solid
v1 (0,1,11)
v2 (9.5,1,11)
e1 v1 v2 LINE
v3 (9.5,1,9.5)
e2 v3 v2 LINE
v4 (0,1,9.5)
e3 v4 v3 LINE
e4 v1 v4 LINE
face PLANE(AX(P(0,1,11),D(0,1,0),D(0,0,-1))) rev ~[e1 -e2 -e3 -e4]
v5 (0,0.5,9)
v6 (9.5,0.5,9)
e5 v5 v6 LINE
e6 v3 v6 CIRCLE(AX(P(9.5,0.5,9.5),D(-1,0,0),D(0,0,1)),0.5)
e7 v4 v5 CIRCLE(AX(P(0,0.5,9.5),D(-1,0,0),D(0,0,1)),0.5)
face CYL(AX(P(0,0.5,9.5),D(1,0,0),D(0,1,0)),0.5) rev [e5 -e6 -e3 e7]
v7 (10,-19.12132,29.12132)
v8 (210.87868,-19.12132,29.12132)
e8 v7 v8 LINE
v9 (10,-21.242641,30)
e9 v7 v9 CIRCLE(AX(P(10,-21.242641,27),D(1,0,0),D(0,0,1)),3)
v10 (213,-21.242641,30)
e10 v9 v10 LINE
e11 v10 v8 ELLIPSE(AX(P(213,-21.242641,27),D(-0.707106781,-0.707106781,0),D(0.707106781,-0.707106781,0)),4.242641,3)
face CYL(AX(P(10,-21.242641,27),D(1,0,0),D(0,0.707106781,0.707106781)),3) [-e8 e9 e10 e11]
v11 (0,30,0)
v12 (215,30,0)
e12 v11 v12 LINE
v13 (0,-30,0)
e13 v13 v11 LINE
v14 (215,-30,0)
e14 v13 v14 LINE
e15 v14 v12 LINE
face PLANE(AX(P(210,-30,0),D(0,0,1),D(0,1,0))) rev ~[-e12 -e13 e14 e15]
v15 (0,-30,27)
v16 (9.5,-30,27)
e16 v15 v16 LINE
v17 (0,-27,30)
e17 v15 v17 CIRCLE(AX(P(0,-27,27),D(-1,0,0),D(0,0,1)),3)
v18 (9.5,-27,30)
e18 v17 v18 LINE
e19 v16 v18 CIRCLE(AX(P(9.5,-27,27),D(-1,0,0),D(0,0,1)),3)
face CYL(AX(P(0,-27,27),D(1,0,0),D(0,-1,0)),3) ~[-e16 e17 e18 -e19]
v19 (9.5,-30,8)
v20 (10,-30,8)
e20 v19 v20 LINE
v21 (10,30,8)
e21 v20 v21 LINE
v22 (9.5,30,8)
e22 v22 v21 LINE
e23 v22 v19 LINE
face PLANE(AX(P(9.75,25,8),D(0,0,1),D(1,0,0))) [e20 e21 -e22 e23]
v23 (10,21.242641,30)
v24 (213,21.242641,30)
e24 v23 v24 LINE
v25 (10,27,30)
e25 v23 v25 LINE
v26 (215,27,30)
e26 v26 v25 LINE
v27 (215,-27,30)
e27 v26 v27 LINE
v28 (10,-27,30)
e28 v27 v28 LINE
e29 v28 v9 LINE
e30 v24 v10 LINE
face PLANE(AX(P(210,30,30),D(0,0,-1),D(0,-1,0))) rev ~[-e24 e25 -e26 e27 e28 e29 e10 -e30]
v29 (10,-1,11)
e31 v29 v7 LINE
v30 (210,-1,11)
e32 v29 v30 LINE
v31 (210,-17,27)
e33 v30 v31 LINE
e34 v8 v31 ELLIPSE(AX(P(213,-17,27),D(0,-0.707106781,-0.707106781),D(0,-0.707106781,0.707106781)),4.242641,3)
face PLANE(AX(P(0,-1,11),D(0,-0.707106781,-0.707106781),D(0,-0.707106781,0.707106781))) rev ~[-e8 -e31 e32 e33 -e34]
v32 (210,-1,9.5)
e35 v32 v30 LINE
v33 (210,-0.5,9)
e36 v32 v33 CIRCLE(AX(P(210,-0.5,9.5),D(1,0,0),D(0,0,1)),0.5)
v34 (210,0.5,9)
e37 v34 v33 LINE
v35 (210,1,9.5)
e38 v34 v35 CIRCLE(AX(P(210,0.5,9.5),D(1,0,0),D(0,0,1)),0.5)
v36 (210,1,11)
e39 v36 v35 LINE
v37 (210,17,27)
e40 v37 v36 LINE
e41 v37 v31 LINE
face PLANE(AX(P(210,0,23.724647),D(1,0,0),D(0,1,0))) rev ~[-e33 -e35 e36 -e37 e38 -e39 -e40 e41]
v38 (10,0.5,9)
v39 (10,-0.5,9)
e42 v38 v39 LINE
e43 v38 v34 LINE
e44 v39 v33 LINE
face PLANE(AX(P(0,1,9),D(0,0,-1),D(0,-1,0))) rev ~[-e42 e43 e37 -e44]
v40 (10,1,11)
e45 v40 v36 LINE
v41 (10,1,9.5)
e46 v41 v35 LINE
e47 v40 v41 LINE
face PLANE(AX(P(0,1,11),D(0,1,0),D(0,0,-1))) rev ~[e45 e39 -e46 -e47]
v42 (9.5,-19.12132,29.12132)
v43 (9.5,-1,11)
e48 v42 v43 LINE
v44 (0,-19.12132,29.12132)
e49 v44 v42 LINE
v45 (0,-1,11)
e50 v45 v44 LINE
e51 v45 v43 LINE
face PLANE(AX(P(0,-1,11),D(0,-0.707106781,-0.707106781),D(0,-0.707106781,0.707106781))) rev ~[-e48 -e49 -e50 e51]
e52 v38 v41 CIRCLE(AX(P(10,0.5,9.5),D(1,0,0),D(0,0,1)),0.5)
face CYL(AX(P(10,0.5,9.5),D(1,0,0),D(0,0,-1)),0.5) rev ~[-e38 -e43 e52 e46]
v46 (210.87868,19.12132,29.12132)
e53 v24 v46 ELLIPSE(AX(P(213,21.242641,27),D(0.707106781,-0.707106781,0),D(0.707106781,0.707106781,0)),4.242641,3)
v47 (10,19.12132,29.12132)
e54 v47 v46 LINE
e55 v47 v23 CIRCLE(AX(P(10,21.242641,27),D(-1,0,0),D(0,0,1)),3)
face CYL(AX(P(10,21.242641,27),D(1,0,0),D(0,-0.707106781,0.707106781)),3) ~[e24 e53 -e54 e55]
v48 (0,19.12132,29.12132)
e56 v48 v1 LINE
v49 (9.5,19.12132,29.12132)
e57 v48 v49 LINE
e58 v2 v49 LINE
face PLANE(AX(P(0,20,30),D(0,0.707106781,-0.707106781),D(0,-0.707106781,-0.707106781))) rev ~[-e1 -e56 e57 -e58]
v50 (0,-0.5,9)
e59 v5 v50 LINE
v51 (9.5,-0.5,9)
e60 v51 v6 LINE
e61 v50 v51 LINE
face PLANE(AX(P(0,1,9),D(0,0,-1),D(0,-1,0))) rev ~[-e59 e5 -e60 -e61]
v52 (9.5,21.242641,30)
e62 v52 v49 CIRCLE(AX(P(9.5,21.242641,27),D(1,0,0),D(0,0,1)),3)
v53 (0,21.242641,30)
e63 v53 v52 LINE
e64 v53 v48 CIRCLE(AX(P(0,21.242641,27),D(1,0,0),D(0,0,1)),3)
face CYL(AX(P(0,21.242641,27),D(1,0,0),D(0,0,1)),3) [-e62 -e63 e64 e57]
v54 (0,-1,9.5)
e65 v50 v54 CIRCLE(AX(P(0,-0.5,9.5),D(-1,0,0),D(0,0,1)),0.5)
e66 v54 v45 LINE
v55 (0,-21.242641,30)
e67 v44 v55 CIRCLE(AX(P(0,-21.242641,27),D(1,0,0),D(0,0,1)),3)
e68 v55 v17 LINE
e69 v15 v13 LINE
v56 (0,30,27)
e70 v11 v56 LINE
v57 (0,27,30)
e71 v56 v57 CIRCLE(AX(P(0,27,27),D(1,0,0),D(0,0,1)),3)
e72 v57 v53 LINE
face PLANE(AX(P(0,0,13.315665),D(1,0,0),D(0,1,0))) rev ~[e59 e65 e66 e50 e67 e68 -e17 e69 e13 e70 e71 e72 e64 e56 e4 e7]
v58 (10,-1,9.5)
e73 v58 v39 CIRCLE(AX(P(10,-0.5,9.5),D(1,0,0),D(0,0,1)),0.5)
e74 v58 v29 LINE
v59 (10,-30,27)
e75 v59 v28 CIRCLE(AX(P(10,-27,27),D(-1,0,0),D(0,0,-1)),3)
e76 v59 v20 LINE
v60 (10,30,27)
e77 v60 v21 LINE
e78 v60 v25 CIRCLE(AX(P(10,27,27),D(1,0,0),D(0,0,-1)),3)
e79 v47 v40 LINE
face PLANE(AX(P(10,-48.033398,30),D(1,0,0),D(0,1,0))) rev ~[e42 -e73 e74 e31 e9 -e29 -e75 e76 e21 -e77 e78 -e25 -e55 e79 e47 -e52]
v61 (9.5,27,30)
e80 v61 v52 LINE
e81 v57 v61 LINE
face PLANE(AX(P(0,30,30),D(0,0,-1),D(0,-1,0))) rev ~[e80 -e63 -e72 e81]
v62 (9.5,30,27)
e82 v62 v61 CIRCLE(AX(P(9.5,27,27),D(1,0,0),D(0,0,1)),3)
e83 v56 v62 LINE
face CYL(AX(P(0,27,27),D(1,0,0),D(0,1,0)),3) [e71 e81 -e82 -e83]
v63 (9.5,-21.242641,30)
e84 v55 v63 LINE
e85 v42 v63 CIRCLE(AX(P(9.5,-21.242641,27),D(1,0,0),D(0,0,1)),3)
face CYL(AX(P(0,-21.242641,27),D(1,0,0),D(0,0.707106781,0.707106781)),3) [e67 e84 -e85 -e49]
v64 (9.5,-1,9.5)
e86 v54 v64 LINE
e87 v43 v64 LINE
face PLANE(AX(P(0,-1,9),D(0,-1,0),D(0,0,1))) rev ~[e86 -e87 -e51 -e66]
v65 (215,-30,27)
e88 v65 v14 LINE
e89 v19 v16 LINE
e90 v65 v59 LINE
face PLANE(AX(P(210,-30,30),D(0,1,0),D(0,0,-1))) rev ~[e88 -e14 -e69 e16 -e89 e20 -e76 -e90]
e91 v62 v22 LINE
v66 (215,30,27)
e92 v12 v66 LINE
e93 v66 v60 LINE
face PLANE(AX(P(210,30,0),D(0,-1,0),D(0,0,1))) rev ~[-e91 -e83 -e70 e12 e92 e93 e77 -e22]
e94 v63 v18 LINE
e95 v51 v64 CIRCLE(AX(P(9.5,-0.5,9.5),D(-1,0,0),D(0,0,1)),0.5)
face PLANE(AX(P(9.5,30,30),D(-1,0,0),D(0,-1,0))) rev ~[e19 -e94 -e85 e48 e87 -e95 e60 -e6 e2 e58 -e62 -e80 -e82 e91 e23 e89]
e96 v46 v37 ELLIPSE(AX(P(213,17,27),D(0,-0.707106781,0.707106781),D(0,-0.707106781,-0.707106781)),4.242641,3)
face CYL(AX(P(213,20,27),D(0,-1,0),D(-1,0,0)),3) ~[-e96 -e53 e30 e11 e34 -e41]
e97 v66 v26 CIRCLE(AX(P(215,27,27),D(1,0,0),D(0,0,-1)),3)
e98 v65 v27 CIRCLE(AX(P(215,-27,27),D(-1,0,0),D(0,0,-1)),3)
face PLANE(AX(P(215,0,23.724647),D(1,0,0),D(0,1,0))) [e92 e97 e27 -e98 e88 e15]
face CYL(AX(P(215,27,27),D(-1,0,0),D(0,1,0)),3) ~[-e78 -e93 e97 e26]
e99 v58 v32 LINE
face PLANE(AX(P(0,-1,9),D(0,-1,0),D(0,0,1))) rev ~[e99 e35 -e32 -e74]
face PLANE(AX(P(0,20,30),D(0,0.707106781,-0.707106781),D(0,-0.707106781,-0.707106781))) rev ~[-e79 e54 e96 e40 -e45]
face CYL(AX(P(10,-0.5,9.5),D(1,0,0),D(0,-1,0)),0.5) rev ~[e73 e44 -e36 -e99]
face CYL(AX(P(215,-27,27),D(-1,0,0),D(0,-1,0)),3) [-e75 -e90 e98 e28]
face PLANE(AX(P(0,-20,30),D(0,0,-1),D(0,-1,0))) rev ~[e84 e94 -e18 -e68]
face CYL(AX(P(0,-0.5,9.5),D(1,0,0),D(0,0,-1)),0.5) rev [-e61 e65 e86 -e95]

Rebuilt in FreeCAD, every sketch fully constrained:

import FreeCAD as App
import Part
import Sketcher

V = App.Vector
Q = App.Units.Quantity


def edges_at(feature, points):
    """Names of the edges that pass closest to the given points."""
    edges = feature.Shape.Edges
    near = lambda p: min(range(len(edges)), key=lambda i: edges[i].distToShape(Part.Vertex(*p))[0])
    return sorted({f"Edge{near(p) + 1}" for p in points})

doc = App.newDocument("Part")
body = doc.addObject("PartDesign::Body", "Body")

# Sketch on YZ plane
sketch1 = doc.addObject("Sketcher::SketchObject", "Sketch")
body.addObject(sketch1)
sketch1.AttachmentSupport = (doc.YZ_Plane, [""])
sketch1.MapMode = "FlatFace"
sketch1.addGeometry([
    Part.LineSegment(V(30, 0, 0), V(30, 30, 0)),  # 0
    Part.LineSegment(V(30, 30, 0), V(20, 30, 0)),  # 1
    Part.LineSegment(V(20, 30, 0), V(1, 11, 0)),  # 2
    Part.LineSegment(V(1, 11, 0), V(1, 9, 0)),  # 3
    Part.LineSegment(V(1, 9, 0), V(-1, 9, 0)),  # 4
    Part.LineSegment(V(-1, 9, 0), V(-1, 11, 0)),  # 5
    Part.LineSegment(V(-1, 11, 0), V(-20, 30, 0)),  # 6
    Part.LineSegment(V(-20, 30, 0), V(-30, 30, 0)),  # 7
    Part.LineSegment(V(-30, 30, 0), V(-30, 0, 0)),  # 8
    Part.LineSegment(V(-30, 0, 0), V(30, 0, 0)),  # 9
], False)
sketch1.addConstraint([
    Sketcher.Constraint("Coincident", 0, 2, 1, 1),
    Sketcher.Constraint("Coincident", 1, 2, 2, 1),
    Sketcher.Constraint("Coincident", 2, 2, 3, 1),
    Sketcher.Constraint("Coincident", 3, 2, 4, 1),
    Sketcher.Constraint("Coincident", 4, 2, 5, 1),
    Sketcher.Constraint("Coincident", 5, 2, 6, 1),
    Sketcher.Constraint("Coincident", 6, 2, 7, 1),
    Sketcher.Constraint("Coincident", 7, 2, 8, 1),
    Sketcher.Constraint("Coincident", 8, 2, 9, 1),
    Sketcher.Constraint("Coincident", 9, 2, 0, 1),
    Sketcher.Constraint("Vertical", 0),
    Sketcher.Constraint("Horizontal", 1),
    Sketcher.Constraint("Vertical", 3),
    Sketcher.Constraint("Horizontal", 4),
    Sketcher.Constraint("Vertical", 5),
    Sketcher.Constraint("Horizontal", 7),
    Sketcher.Constraint("Vertical", 8),
    Sketcher.Constraint("Horizontal", 9),
    Sketcher.Constraint("Symmetric", 8, 2, 9, 2, -1, 1),
    Sketcher.Constraint("Symmetric", 2, 2, 5, 2, -2),
    Sketcher.Constraint("Symmetric", 1, 2, 6, 2, -2),
    Sketcher.Constraint("Perpendicular", 2, 6),
    Sketcher.Constraint("Equal", 4, 3),
    Sketcher.Constraint("DistanceX", 1, 2, 1, 1, Q("10 mm")),
    Sketcher.Constraint("DistanceX", 4, 2, 4, 1, Q("2 mm")),
    Sketcher.Constraint("DistanceX", 9, 1, 9, 2, Q("60 mm")),
    Sketcher.Constraint("DistanceY", 0, 1, 0, 2, Q("30 mm")),
])
pad1 = doc.addObject("PartDesign::Pad", "Pad")
body.addObject(pad1)
pad1.Profile = sketch1
pad1.Length = 210

# Sketch on XY plane
sketch2 = doc.addObject("Sketcher::SketchObject", "Sketch001")
body.addObject(sketch2)
sketch2.AttachmentSupport = (doc.XY_Plane, [""])
sketch2.MapMode = "FlatFace"
sketch2.AttachmentOffset = App.Placement(V(0, 0, 30), App.Rotation())
sketch2.addGeometry([
    Part.LineSegment(V(9.5, 30, 0), V(9.5, -48, 0)),
    Part.LineSegment(V(9.5, -48, 0), V(10, -48, 0)),
    Part.LineSegment(V(10, -48, 0), V(10, 30, 0)),
    Part.LineSegment(V(10, 30, 0), V(9.5, 30, 0)),
], False)
sketch2.addConstraint([
    Sketcher.Constraint("Coincident", 0, 2, 1, 1),
    Sketcher.Constraint("Coincident", 1, 2, 2, 1),
    Sketcher.Constraint("Coincident", 2, 2, 3, 1),
    Sketcher.Constraint("Coincident", 3, 2, 0, 1),
    Sketcher.Constraint("Vertical", 0),
    Sketcher.Constraint("Horizontal", 1),
    Sketcher.Constraint("Vertical", 2),
    Sketcher.Constraint("Horizontal", 3),
    Sketcher.Constraint("DistanceX", 1, 1, 1, 2, Q("0.5 mm")),
    Sketcher.Constraint("DistanceX", -1, 1, 1, 2, Q("10 mm")),
    Sketcher.Constraint("DistanceY", -1, 1, 2, 2, Q("30 mm")),
    Sketcher.Constraint("DistanceY", 0, 2, 0, 1, Q("78.033398 mm")),
])
pocket1 = doc.addObject("PartDesign::Pocket", "Pocket")
body.addObject(pocket1)
pocket1.Profile = sketch2
pocket1.Length = 22
doc.recompute()

fillet = doc.addObject("PartDesign::Fillet", "Fillet")
body.addObject(fillet)
fillet.Base = (pocket1, edges_at(pocket1, [
    (110, -1, 9),
    (110, 1, 9),
    (4.75, -1, 9),
    (4.75, 1, 9),
]))
fillet.Radius = 0.5

# Sketch on YZ plane
sketch3 = doc.addObject("Sketcher::SketchObject", "Sketch002")
body.addObject(sketch3)
sketch3.AttachmentSupport = (doc.YZ_Plane, [""])
sketch3.MapMode = "FlatFace"
sketch3.AttachmentOffset = App.Placement(V(0, 0, 210), App.Rotation())
sketch3.addGeometry([
    Part.LineSegment(V(-30, 30, 0), V(-30, 0, 0)),
    Part.LineSegment(V(-30, 0, 0), V(30, 0, 0)),
    Part.LineSegment(V(30, 0, 0), V(30, 30, 0)),
    Part.LineSegment(V(30, 30, 0), V(-30, 30, 0)),
], False)
sketch3.addConstraint([
    Sketcher.Constraint("Coincident", 0, 2, 1, 1),
    Sketcher.Constraint("Coincident", 1, 2, 2, 1),
    Sketcher.Constraint("Coincident", 2, 2, 3, 1),
    Sketcher.Constraint("Coincident", 3, 2, 0, 1),
    Sketcher.Constraint("Vertical", 0),
    Sketcher.Constraint("Horizontal", 1),
    Sketcher.Constraint("Vertical", 2),
    Sketcher.Constraint("Horizontal", 3),
    Sketcher.Constraint("Symmetric", 0, 2, 1, 2, -1, 1),
    Sketcher.Constraint("DistanceX", 1, 1, 1, 2, Q("60 mm")),
    Sketcher.Constraint("DistanceY", 0, 2, 0, 1, Q("30 mm")),
])
pad2 = doc.addObject("PartDesign::Pad", "Pad001")
body.addObject(pad2)
pad2.Profile = sketch3
pad2.Length = 5
doc.recompute()

fillet2 = doc.addObject("PartDesign::Fillet", "Fillet001")
body.addObject(fillet2)
fillet2.Base = (pad2, edges_at(pad2, [
    (112.5, 30, 30),
    (4.75, 30, 30),
    (112.5, -30, 30),
    (4.75, -30, 30),
    (110, -20, 30),
    (4.75, -20, 30),
    (4.75, 20, 30),
    (110, 20, 30),
    (210, 0, 30),
]))
fillet2.Radius = 3

doc.recompute()
